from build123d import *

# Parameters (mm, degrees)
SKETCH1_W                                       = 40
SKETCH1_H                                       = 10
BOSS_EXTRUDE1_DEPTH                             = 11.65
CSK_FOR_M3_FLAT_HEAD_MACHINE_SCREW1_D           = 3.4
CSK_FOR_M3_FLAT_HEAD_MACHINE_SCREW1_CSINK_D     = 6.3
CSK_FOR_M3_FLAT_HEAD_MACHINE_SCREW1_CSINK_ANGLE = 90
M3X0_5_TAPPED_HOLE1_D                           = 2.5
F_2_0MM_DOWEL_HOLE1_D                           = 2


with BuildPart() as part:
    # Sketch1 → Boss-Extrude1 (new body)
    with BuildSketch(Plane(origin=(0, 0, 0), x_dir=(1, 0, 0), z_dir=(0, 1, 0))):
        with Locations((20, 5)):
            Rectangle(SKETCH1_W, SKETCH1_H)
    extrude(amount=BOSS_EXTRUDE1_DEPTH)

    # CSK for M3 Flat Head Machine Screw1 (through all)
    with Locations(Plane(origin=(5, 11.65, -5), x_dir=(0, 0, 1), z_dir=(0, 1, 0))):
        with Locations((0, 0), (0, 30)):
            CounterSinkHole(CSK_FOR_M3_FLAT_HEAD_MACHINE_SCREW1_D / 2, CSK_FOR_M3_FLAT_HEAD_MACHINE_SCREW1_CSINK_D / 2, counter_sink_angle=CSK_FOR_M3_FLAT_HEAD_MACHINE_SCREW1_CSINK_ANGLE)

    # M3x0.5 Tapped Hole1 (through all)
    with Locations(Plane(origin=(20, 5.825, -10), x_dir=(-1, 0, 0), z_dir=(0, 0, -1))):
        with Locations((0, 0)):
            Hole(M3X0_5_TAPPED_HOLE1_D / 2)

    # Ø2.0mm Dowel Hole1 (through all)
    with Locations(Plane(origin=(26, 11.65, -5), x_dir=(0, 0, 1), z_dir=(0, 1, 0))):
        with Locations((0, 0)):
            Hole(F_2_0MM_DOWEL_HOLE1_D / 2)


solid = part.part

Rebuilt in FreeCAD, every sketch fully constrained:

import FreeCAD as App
import Part
import Sketcher
from FreeCAD import Vector
Q = App.Units.Quantity

doc = App.newDocument("Part")
params = doc.addObject("Spreadsheet::Sheet", "Params")
for row, (alias, value) in enumerate([
    ("sketch1_width", "40 mm"),
    ("sketch1_height", "10 mm"),
    ("pad1_length", "11.65 mm"),
    ("sketch2_diameter", "3.4 mm"),
    ("hole_diameter", "3.4 mm"),
    ("hole_csink_diameter", "6.3 mm"),
    ("sketch3_diameter", "2.5 mm"),
    ("hole2_diameter", "2.5 mm"),
    ("sketch4_diameter", "2 mm"),
    ("hole3_diameter", "2 mm"),
], start=1):
    params.set(f"A{row}", alias)
    params.set(f"B{row}", "=" + value)
    params.setAlias(f"B{row}", alias)

body = doc.addObject("PartDesign::Body", "Body")

sketch1 = body.newObject("Sketcher::SketchObject", "Sketch")
sketch1.AttachmentSupport = (doc.getObject("XZ_Plane"), [""])
sketch1.MapMode = "FlatFace"
sketch1.addGeometry(Part.LineSegment(Vector(0, -10, 0), Vector(0, 0, 0)), False)
sketch1.addGeometry(Part.LineSegment(Vector(0, 0, 0), Vector(40, 0, 0)), False)
sketch1.addGeometry(Part.LineSegment(Vector(40, 0, 0), Vector(40, -10, 0)), False)
sketch1.addGeometry(Part.LineSegment(Vector(40, -10, 0), Vector(0, -10, 0)), False)
sketch1.addConstraint(Sketcher.Constraint("Coincident", 0, 2, 1, 1))
sketch1.addConstraint(Sketcher.Constraint("Coincident", 1, 2, 2, 1))
sketch1.addConstraint(Sketcher.Constraint("Coincident", 2, 2, 3, 1))
sketch1.addConstraint(Sketcher.Constraint("Coincident", 3, 2, 0, 1))
sketch1.addConstraint(Sketcher.Constraint("Vertical", 0))
sketch1.addConstraint(Sketcher.Constraint("Horizontal", 1))
sketch1.addConstraint(Sketcher.Constraint("Vertical", 2))
sketch1.addConstraint(Sketcher.Constraint("Horizontal", 3))
sketch1.addConstraint(Sketcher.Constraint("Coincident", 0, 2, -1, 1))
sketch1.addConstraint(Sketcher.Constraint("DistanceX", 1, 1, 1, 2, Q("40 mm")))
sketch1.addConstraint(Sketcher.Constraint("DistanceY", 0, 1, 0, 2, Q("10 mm")))
sketch1.setExpression("Constraints[9]", "Params.sketch1_width")
sketch1.setExpression("Constraints[10]", "Params.sketch1_height")
pad1 = body.newObject("PartDesign::Pad", "Pad")
pad1.Profile = sketch1
pad1.setExpression("Length", "Params.pad1_length")
pad1.Reversed = True

sketch2 = body.newObject("Sketcher::SketchObject", "Sketch001")
sketch2.AttachmentSupport = (doc.getObject("XZ_Plane"), [""])
sketch2.MapMode = "FlatFace"
sketch2.AttachmentOffset = App.Placement(Vector(0, 0, -11.65), App.Rotation())
sketch2.addGeometry(Part.Circle(Vector(5, -5, 0), Vector(0, 0, 1), 1.7), False)
sketch2.addGeometry(Part.Circle(Vector(35, -5, 0), Vector(0, 0, 1), 1.7), False)
sketch2.addConstraint(Sketcher.Constraint("Equal", 0, 1))
sketch2.addConstraint(Sketcher.Constraint("Horizontal", 0, 3, 1, 3))
sketch2.addConstraint(Sketcher.Constraint("Diameter", 0, Q("3.4 mm")))
sketch2.addConstraint(Sketcher.Constraint("DistanceX", -1, 1, 0, 3, Q("5 mm")))
sketch2.addConstraint(Sketcher.Constraint("DistanceY", 0, 3, -1, 1, Q("5 mm")))
sketch2.addConstraint(Sketcher.Constraint("DistanceX", -1, 1, 1, 3, Q("35 mm")))
sketch2.setExpression("Constraints[2]", "Params.sketch2_diameter")
doc.recompute()
hole = body.newObject("PartDesign::Hole", "Hole")
hole.Profile = sketch2
hole.ThreadType = "None"
hole.setExpression("Diameter", "Params.hole_diameter")
hole.DepthType = "ThroughAll"
hole.HoleCutType = "Countersink"
hole.setExpression("HoleCutDiameter", "Params.hole_csink_diameter")
hole.HoleCutCountersinkAngle = 90
hole.Reversed = True

sketch3 = body.newObject("Sketcher::SketchObject", "Sketch002")
sketch3.AttachmentSupport = (doc.getObject("XY_Plane"), [""])
sketch3.MapMode = "FlatFace"
sketch3.AttachmentOffset = App.Placement(Vector(0, 0, -10), App.Rotation())
sketch3.addGeometry(Part.Circle(Vector(20, 5.8, 0), Vector(0, 0, 1), 1.2), False)
sketch3.addConstraint(Sketcher.Constraint("Diameter", 0, Q("2.5 mm")))
sketch3.addConstraint(Sketcher.Constraint("DistanceX", -1, 1, 0, 3, Q("20 mm")))
sketch3.addConstraint(Sketcher.Constraint("DistanceY", -1, 1, 0, 3, Q("5.825 mm")))
sketch3.setExpression("Constraints[0]", "Params.sketch3_diameter")
doc.recompute()
hole2 = body.newObject("PartDesign::Hole", "Hole001")
hole2.Profile = sketch3
hole2.ThreadType = "None"
hole2.setExpression("Diameter", "Params.hole2_diameter")
hole2.DepthType = "ThroughAll"
hole2.Reversed = True

sketch4 = body.newObject("Sketcher::SketchObject", "Sketch003")
sketch4.AttachmentSupport = (doc.getObject("XZ_Plane"), [""])
sketch4.MapMode = "FlatFace"
sketch4.AttachmentOffset = App.Placement(Vector(0, 0, -11.65), App.Rotation())
sketch4.addGeometry(Part.Circle(Vector(26, -5, 0), Vector(0, 0, 1), 1), False)
sketch4.addConstraint(Sketcher.Constraint("Diameter", 0, Q("2 mm")))
sketch4.addConstraint(Sketcher.Constraint("DistanceX", -1, 1, 0, 3, Q("26 mm")))
sketch4.addConstraint(Sketcher.Constraint("DistanceY", 0, 3, -1, 1, Q("5 mm")))
sketch4.setExpression("Constraints[0]", "Params.sketch4_diameter")
doc.recompute()
hole3 = body.newObject("PartDesign::Hole", "Hole002")
hole3.Profile = sketch4
hole3.ThreadType = "None"
hole3.setExpression("Diameter", "Params.hole3_diameter")
hole3.DepthType = "ThroughAll"
hole3.Reversed = True

doc.recompute()
